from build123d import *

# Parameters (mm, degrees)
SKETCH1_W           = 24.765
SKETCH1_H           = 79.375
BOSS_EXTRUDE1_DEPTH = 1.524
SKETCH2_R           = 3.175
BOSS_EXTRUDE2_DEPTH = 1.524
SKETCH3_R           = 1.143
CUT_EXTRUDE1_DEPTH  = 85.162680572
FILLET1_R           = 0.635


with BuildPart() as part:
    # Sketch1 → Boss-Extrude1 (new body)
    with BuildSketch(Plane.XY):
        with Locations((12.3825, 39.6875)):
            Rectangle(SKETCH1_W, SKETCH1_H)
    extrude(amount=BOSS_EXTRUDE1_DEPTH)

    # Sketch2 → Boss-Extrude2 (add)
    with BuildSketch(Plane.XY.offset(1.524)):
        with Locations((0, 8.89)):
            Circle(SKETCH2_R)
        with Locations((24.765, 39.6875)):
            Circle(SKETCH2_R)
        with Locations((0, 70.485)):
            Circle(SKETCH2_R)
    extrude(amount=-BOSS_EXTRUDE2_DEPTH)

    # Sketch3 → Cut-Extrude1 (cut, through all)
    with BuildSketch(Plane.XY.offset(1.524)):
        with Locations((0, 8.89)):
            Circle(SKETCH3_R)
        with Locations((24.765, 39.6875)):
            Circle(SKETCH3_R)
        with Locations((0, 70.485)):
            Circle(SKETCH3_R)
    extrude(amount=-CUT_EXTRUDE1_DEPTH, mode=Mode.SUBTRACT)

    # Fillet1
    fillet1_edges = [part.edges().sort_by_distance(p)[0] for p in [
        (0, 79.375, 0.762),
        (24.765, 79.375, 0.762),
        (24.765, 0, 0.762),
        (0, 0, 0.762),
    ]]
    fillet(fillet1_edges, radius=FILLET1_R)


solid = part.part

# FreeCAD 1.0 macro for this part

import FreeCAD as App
import Part
import Sketcher
Q = App.Units.Quantity


def edges_at(feature, points):
    """Names of the edges that pass closest to the given points."""
    edges = feature.Shape.Edges
    near = lambda p: min(range(len(edges)), key=lambda i: edges[i].distToShape(Part.Vertex(*p))[0])
    return sorted({f"Edge{near(p) + 1}" for p in points})


def add_polygon(sketch, points):
    """Adds a closed chain of lines whose ends are joined by coincident constraints."""
    first, n = sketch.GeometryCount, len(points)
    for a, b in zip(points, points[1:] + points[:1]):
        sketch.addGeometry(Part.LineSegment(App.Vector(*a, 0), App.Vector(*b, 0)), False)
    for i in range(n):
        sketch.addConstraint(Sketcher.Constraint("Coincident", first + i, 2, first + (i + 1) % n, 1))

doc = App.newDocument("Part")
body = doc.addObject("PartDesign::Body", "Body")

# Sketch on XY plane
sketch1 = doc.addObject("Sketcher::SketchObject", "Sketch")
body.addObject(sketch1)
sketch1.AttachmentSupport = (doc.XY_Plane, [""])
sketch1.MapMode = "FlatFace"
add_polygon(sketch1, [(0, 79), (0, 0), (25, 0), (25, 79)])  # lines 0-3
sketch1.addConstraint([
    Sketcher.Constraint("Vertical", 0),
    Sketcher.Constraint("Horizontal", 1),
    Sketcher.Constraint("Vertical", 2),
    Sketcher.Constraint("Horizontal", 3),
    Sketcher.Constraint("Coincident", 0, 2, -1, 1),
    Sketcher.Constraint("DistanceX", 1, 1, 1, 2, Q("0.975 in")),
    Sketcher.Constraint("DistanceY", 0, 2, 0, 1, Q("3.125 in")),
])
pad1 = doc.addObject("PartDesign::Pad", "Pad")
body.addObject(pad1)
pad1.Profile = sketch1
pad1.Length = Q("0.06 in")

# Sketch on XY plane
sketch2 = doc.addObject("Sketcher::SketchObject", "Sketch001")
body.addObject(sketch2)
sketch2.AttachmentSupport = (doc.XY_Plane, [""])
sketch2.MapMode = "FlatFace"
sketch2.AttachmentOffset = App.Placement(App.Vector(0, 0, 0.06 * 25.4), App.Rotation())
sketch2.addGeometry([
    Part.Circle(App.Vector(0, 8.9, 0), App.Vector(0, 0, 1), 3.2),
    Part.Circle(App.Vector(24.8, 39.7, 0), App.Vector(0, 0, 1), 3.2),
    Part.Circle(App.Vector(0, 70.5, 0), App.Vector(0, 0, 1), 3.2),
], False)
sketch2.addConstraint([
    Sketcher.Constraint("Equal", 0, 1),
    Sketcher.Constraint("Equal", 1, 2),
    Sketcher.Constraint("PointOnObject", 0, 3, -2),
    Sketcher.Constraint("PointOnObject", 2, 3, -2),
    Sketcher.Constraint("Diameter", 0, Q("0.25 in")),
    Sketcher.Constraint("DistanceY", -1, 1, 0, 3, Q("0.35 in")),
    Sketcher.Constraint("DistanceX", -1, 1, 1, 3, Q("0.975 in")),
    Sketcher.Constraint("DistanceY", -1, 1, 1, 3, Q("1.5625 in")),
    Sketcher.Constraint("DistanceY", -1, 1, 2, 3, Q("2.775 in")),
])
pad2 = doc.addObject("PartDesign::Pad", "Pad001")
body.addObject(pad2)
pad2.Profile = sketch2
pad2.Length = Q("0.06 in")
pad2.Reversed = True

# Sketch on XY plane
sketch3 = doc.addObject("Sketcher::SketchObject", "Sketch002")
body.addObject(sketch3)
sketch3.AttachmentSupport = (doc.XY_Plane, [""])
sketch3.MapMode = "FlatFace"
sketch3.AttachmentOffset = App.Placement(App.Vector(0, 0, 0.06 * 25.4), App.Rotation())
sketch3.addGeometry([
    Part.Circle(App.Vector(0, 8.9, 0), App.Vector(0, 0, 1), 1.1),
    Part.Circle(App.Vector(24.8, 39.7, 0), App.Vector(0, 0, 1), 1.1),
    Part.Circle(App.Vector(0, 70.5, 0), App.Vector(0, 0, 1), 1.1),
], False)
sketch3.addConstraint([
    Sketcher.Constraint("Equal", 0, 1),
    Sketcher.Constraint("Equal", 1, 2),
    Sketcher.Constraint("PointOnObject", 0, 3, -2),
    Sketcher.Constraint("PointOnObject", 2, 3, -2),
    Sketcher.Constraint("Diameter", 0, Q("0.09 in")),
    Sketcher.Constraint("DistanceY", -1, 1, 0, 3, Q("0.35 in")),
    Sketcher.Constraint("DistanceX", -1, 1, 1, 3, Q("0.975 in")),
    Sketcher.Constraint("DistanceY", -1, 1, 1, 3, Q("1.5625 in")),
    Sketcher.Constraint("DistanceY", -1, 1, 2, 3, Q("2.775 in")),
])
pocket1 = doc.addObject("PartDesign::Pocket", "Pocket")
body.addObject(pocket1)
pocket1.Profile = sketch3
pocket1.Type = "ThroughAll"
doc.recompute()

fillet = doc.addObject("PartDesign::Fillet", "Fillet")
body.addObject(fillet)
fillet.Base = (pocket1, edges_at(pocket1, [
    (0, 79.375, 0.762),
    (24.765, 79.375, 0.762),
    (24.765, 0, 0.762),
    (0, 0, 0.762),
]))
fillet.Radius = Q("0.025 in")

doc.recompute()
